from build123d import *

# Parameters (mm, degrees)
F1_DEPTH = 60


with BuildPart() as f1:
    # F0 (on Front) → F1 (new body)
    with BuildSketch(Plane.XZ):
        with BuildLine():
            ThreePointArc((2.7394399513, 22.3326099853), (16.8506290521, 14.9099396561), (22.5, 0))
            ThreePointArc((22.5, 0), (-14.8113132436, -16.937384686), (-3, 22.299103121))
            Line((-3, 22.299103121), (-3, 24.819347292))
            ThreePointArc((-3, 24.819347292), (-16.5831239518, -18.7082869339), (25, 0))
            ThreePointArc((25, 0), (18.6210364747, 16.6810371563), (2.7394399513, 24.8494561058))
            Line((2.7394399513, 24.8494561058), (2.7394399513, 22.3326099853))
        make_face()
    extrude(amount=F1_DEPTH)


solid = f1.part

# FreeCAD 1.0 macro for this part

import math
import FreeCAD as App
import Part
import Sketcher

doc = App.newDocument("Part")
body = doc.addObject("PartDesign::Body", "Body")

# Sketch on XZ plane
sketch1 = body.newObject("Sketcher::SketchObject", "Sketch")
sketch1.AttachmentSupport = (doc.getObject("XZ_Plane"), [""])
sketch1.MapMode = "FlatFace"
sketch1.addGeometry([
    Part.ArcOfCircle(Part.Circle(App.Vector(0, 0, 0), App.Vector(0, 0, 1), 22.5), math.radians(0), math.radians(83)),  # 0
    Part.ArcOfCircle(Part.Circle(App.Vector(0, 0, 0), App.Vector(0, 0, 1), 22.5), math.radians(98), math.radians(360)),  # 1
    Part.LineSegment(App.Vector(-3, 22.3, 0), App.Vector(-3, 24.8, 0)),  # 2
    Part.ArcOfCircle(Part.Circle(App.Vector(0, 0, 0), App.Vector(0, 0, 1), 25), math.radians(97), math.radians(360)),  # 3
    Part.ArcOfCircle(Part.Circle(App.Vector(0, 0, 0), App.Vector(0, 0, 1), 25), math.radians(0), math.radians(84)),  # 4
    Part.LineSegment(App.Vector(2.7, 24.8, 0), App.Vector(2.7, 22.3, 0)),  # 5
], False)
sketch1.addConstraint([
    Sketcher.Constraint("Tangent", 0, 1, 1, 2),
    Sketcher.Constraint("Coincident", 1, 1, 2, 1),
    Sketcher.Constraint("Coincident", 2, 2, 3, 1),
    Sketcher.Constraint("Tangent", 3, 2, 4, 1),
    Sketcher.Constraint("Coincident", 4, 2, 5, 1),
    Sketcher.Constraint("Coincident", 5, 2, 0, 2),
    Sketcher.Constraint("Vertical", 2),
    Sketcher.Constraint("Vertical", 5),
    Sketcher.Constraint("Coincident", 0, 3, -1, 1),
    Sketcher.Constraint("Coincident", 3, 3, -1, 1),
    Sketcher.Constraint("Equal", 0, 1),
    Sketcher.Constraint("Equal", 3, 4),
    Sketcher.Constraint("PointOnObject", 0, 1, -1),
    Sketcher.Constraint("PointOnObject", 3, 2, -1),
    Sketcher.Constraint("Radius", 3, 25.0),
    Sketcher.Constraint("Radius", 0, 22.5),
    Sketcher.Constraint("DistanceX", 1, 1, -1, 1, 3.0),
    Sketcher.Constraint("DistanceY", 5, 2, 5, 1, 2.516846),
])
pad1 = body.newObject("PartDesign::Pad", "Pad")
pad1.Profile = sketch1
pad1.Length = 60

doc.recompute()
